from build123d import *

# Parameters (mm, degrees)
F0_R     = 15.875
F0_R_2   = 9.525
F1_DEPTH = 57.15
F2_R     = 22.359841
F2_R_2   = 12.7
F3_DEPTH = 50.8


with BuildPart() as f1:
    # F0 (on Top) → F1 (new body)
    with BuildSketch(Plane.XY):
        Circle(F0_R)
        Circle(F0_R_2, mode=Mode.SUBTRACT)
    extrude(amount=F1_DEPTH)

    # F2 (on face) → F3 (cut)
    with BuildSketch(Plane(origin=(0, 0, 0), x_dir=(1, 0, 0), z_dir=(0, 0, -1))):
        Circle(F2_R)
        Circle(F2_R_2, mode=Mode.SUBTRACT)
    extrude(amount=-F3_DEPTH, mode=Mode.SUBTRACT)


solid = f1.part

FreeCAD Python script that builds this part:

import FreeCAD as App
import Part
import Sketcher
from FreeCAD import Vector
Q = App.Units.Quantity

doc = App.newDocument("Part")
body = doc.addObject("PartDesign::Body", "Body")

sketch1 = doc.addObject("Sketcher::SketchObject", "Sketch")
body.addObject(sketch1)
sketch1.AttachmentSupport = (doc.XY_Plane, [""])
sketch1.MapMode = "FlatFace"
sketch1.addGeometry(Part.Circle(Vector(0, 0, 0), Vector(0, 0, 1), 15.875), False)
sketch1.addGeometry(Part.Circle(Vector(0, 0, 0), Vector(0, 0, 1), 9.525), False)
sketch1.addConstraint(Sketcher.Constraint("Coincident", 0, 3, -1, 1))
sketch1.addConstraint(Sketcher.Constraint("Coincident", 1, 3, -1, 1))
sketch1.addConstraint(Sketcher.Constraint("Diameter", 0, Q("1.25 in")))
sketch1.addConstraint(Sketcher.Constraint("Diameter", 1, Q("0.75 in")))
pad1 = doc.addObject("PartDesign::Pad", "Pad")
body.addObject(pad1)
pad1.Profile = sketch1
pad1.Length = Q("2.25 in")

sketch2 = doc.addObject("Sketcher::SketchObject", "Sketch001")
body.addObject(sketch2)
sketch2.AttachmentSupport = (doc.XY_Plane, [""])
sketch2.MapMode = "FlatFace"
sketch2.addGeometry(Part.Circle(Vector(0, 0, 0), Vector(0, 0, 1), 22.359841), False)
sketch2.addGeometry(Part.Circle(Vector(0, 0, 0), Vector(0, 0, 1), 12.7), False)
sketch2.addConstraint(Sketcher.Constraint("Coincident", 0, 3, -1, 1))
sketch2.addConstraint(Sketcher.Constraint("Coincident", 1, 3, -1, 1))
sketch2.addConstraint(Sketcher.Constraint("Diameter", 1, Q("1 in")))
sketch2.addConstraint(Sketcher.Constraint("Diameter", 0, 44.719682))
pocket1 = doc.addObject("PartDesign::Pocket", "Pocket")
body.addObject(pocket1)
pocket1.Profile = sketch2
pocket1.Length = Q("2 in")
pocket1.Reversed = True

doc.recompute()
